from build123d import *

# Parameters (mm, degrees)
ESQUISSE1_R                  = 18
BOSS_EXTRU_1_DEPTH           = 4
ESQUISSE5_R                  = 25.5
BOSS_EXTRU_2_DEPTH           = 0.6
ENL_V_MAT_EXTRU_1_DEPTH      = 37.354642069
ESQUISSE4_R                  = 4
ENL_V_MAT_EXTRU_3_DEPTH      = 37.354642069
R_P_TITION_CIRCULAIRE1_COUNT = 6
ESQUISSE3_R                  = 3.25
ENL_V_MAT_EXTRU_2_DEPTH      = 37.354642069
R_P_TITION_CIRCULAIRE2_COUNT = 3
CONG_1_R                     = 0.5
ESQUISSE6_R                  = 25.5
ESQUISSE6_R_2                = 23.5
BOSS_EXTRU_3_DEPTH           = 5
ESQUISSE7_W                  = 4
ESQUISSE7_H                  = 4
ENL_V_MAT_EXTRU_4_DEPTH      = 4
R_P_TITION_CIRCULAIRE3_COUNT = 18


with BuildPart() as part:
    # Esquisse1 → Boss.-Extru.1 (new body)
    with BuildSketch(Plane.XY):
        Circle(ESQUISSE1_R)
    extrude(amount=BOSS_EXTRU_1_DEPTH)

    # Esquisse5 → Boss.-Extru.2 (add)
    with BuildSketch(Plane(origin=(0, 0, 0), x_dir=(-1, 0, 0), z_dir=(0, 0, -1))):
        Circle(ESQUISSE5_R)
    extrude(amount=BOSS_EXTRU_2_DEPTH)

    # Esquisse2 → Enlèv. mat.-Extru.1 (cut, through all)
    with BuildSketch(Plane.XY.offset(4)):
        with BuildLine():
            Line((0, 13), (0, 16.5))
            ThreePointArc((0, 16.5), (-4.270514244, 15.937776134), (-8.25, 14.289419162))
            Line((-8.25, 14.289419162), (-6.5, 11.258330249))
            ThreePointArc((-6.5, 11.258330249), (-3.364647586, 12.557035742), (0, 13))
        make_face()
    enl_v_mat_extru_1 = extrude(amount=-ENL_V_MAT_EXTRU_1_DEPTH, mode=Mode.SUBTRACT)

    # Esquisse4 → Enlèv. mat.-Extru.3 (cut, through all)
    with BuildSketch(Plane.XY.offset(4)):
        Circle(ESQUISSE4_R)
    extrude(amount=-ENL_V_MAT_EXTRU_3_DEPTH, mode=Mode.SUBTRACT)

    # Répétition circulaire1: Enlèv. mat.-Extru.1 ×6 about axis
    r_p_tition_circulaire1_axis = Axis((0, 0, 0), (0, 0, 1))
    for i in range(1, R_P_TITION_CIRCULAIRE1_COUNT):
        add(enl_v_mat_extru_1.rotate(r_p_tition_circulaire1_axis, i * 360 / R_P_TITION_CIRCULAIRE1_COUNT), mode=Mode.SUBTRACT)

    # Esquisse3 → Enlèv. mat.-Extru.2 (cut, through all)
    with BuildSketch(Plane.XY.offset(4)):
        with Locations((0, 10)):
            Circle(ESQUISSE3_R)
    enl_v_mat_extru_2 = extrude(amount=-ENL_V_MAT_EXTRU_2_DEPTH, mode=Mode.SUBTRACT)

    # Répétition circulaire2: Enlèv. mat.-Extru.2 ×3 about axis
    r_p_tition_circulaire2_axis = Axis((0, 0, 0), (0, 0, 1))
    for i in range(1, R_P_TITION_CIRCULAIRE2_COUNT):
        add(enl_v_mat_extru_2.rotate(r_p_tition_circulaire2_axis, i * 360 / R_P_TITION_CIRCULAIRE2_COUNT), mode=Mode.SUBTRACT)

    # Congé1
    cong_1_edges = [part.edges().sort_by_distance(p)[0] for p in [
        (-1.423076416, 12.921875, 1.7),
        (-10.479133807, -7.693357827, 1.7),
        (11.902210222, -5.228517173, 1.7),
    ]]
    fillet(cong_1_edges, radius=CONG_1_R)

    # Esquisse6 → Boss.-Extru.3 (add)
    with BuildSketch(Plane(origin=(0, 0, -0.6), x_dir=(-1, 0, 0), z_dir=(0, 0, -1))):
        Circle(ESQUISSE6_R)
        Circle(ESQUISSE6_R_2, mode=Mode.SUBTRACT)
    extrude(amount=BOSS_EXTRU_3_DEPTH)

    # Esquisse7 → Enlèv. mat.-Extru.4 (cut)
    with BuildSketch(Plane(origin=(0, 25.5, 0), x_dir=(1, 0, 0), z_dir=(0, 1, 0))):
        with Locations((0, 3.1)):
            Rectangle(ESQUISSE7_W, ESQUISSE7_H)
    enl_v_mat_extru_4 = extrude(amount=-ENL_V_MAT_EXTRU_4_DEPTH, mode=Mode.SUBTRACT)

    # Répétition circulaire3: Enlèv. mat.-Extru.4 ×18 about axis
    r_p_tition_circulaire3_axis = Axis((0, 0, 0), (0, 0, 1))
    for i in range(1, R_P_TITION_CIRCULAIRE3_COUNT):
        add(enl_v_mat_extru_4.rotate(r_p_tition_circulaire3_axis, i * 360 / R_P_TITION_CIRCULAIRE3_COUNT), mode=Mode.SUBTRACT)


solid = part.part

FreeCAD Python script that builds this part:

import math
import FreeCAD as App
import Part
import Sketcher
Q = App.Units.Quantity


def edges_at(feature, points):
    """Names of the edges that pass closest to the given points."""
    edges = feature.Shape.Edges
    near = lambda p: min(range(len(edges)), key=lambda i: edges[i].distToShape(Part.Vertex(*p))[0])
    return sorted({f"Edge{near(p) + 1}" for p in points})

doc = App.newDocument("Part")
params = doc.addObject("Spreadsheet::Sheet", "Params")
for row, (alias, value) in enumerate([
    ("sketch1_diameter", "36 mm"),
    ("pad1_length", "4 mm"),
    ("sketch2_diameter", "51 mm"),
    ("pad2_length", "0.6 mm"),
    ("sketch3_radius", "13 mm"),
    ("sketch3_radius2", "16.5 mm"),
    ("sketch4_diameter", "8 mm"),
    ("sketch5_diameter", "6.5 mm"),
    ("fillet_radius", "0.5 mm"),
    ("sketch6_diameter", "51 mm"),
    ("sketch6_diameter2", "47 mm"),
    ("pad3_length", "5 mm"),
    ("sketch7_width", "4 mm"),
    ("pocket4_length", "4 mm"),
], start=1):
    params.set(f"A{row}", alias)
    params.set(f"B{row}", "=" + value)
    params.setAlias(f"B{row}", alias)

body = doc.addObject("PartDesign::Body", "Body")

# Sketch on XY plane
sketch1 = doc.addObject("Sketcher::SketchObject", "Sketch")
body.addObject(sketch1)
sketch1.AttachmentSupport = (doc.XY_Plane, [""])
sketch1.MapMode = "FlatFace"
sketch1.addGeometry(Part.Circle(App.Vector(0, 0, 0), App.Vector(0, 0, 1), 18), False)
sketch1.addConstraint(Sketcher.Constraint("Coincident", 0, 3, -1, 1))
sketch1.addConstraint(Sketcher.Constraint("Diameter", 0, Q("36 mm")))
sketch1.setExpression("Constraints[1]", "Params.sketch1_diameter")
pad1 = doc.addObject("PartDesign::Pad", "Pad")
body.addObject(pad1)
pad1.Profile = sketch1
pad1.setExpression("Length", "Params.pad1_length")

# Sketch on XY plane
sketch2 = doc.addObject("Sketcher::SketchObject", "Sketch001")
body.addObject(sketch2)
sketch2.AttachmentSupport = (doc.XY_Plane, [""])
sketch2.MapMode = "FlatFace"
sketch2.addGeometry(Part.Circle(App.Vector(0, 0, 0), App.Vector(0, 0, 1), 26), False)
sketch2.addConstraint(Sketcher.Constraint("Coincident", 0, 3, -1, 1))
sketch2.addConstraint(Sketcher.Constraint("Diameter", 0, Q("51 mm")))
sketch2.setExpression("Constraints[1]", "Params.sketch2_diameter")
pad2 = doc.addObject("PartDesign::Pad", "Pad001")
body.addObject(pad2)
pad2.Profile = sketch2
pad2.setExpression("Length", "Params.pad2_length")
pad2.Reversed = True

# Sketch on XY plane
sketch3 = doc.addObject("Sketcher::SketchObject", "Sketch002")
body.addObject(sketch3)
sketch3.AttachmentSupport = (doc.XY_Plane, [""])
sketch3.MapMode = "FlatFace"
sketch3.AttachmentOffset = App.Placement(App.Vector(0, 0, 4), App.Rotation())
sketch3.addGeometry(Part.LineSegment(App.Vector(0, 13, 0), App.Vector(0, 16.5, 0)), False)
sketch3.addGeometry(Part.ArcOfCircle(Part.Circle(App.Vector(0, 0, 0), App.Vector(0, 0, 1), 16.5), math.radians(90), math.radians(120)), False)
sketch3.addGeometry(Part.LineSegment(App.Vector(-8.2, 14.3, 0), App.Vector(-6.5, 11.3, 0)), False)
sketch3.addGeometry(Part.ArcOfCircle(Part.Circle(App.Vector(0, 0, 0), App.Vector(0, 0, 1), 13), math.radians(90), math.radians(120)), False)
sketch3.addConstraint(Sketcher.Constraint("Coincident", 0, 2, 1, 1))
sketch3.addConstraint(Sketcher.Constraint("Coincident", 1, 2, 2, 1))
sketch3.addConstraint(Sketcher.Constraint("Coincident", 2, 2, 3, 2))
sketch3.addConstraint(Sketcher.Constraint("Coincident", 3, 1, 0, 1))
sketch3.addConstraint(Sketcher.Constraint("Vertical", 0))
sketch3.addConstraint(Sketcher.Constraint("Coincident", 1, 3, -1, 1))
sketch3.addConstraint(Sketcher.Constraint("Coincident", 3, 3, -1, 1))
sketch3.addConstraint(Sketcher.Constraint("PointOnObject", 0, 2, -2))
sketch3.addConstraint(Sketcher.Constraint("Radius", 3, Q("13 mm")))
sketch3.addConstraint(Sketcher.Constraint("Radius", 1, Q("16.5 mm")))
sketch3.addConstraint(Sketcher.Constraint("Angle", 2, Q("-60 deg")))
sketch3.addConstraint(Sketcher.Constraint("DistanceX", 2, 2, -1, 1, Q("6.5 mm")))
sketch3.setExpression("Constraints[8]", "Params.sketch3_radius")
sketch3.setExpression("Constraints[9]", "Params.sketch3_radius2")
pocket1 = doc.addObject("PartDesign::Pocket", "Pocket")
body.addObject(pocket1)
pocket1.Profile = sketch3
pocket1.Type = "ThroughAll"

# Sketch on XY plane
sketch4 = doc.addObject("Sketcher::SketchObject", "Sketch003")
body.addObject(sketch4)
sketch4.AttachmentSupport = (doc.XY_Plane, [""])
sketch4.MapMode = "FlatFace"
sketch4.AttachmentOffset = App.Placement(App.Vector(0, 0, 4), App.Rotation())
sketch4.addGeometry(Part.Circle(App.Vector(0, 0, 0), App.Vector(0, 0, 1), 4), False)
sketch4.addConstraint(Sketcher.Constraint("Coincident", 0, 3, -1, 1))
sketch4.addConstraint(Sketcher.Constraint("Diameter", 0, Q("8 mm")))
sketch4.setExpression("Constraints[1]", "Params.sketch4_diameter")
pocket2 = doc.addObject("PartDesign::Pocket", "Pocket001")
body.addObject(pocket2)
pocket2.Profile = sketch4
pocket2.Type = "ThroughAll"
doc.recompute()

polarpattern = doc.addObject("PartDesign::PolarPattern", "PolarPattern")
body.addObject(polarpattern)
polarpattern.Originals = [pocket1]
polarpattern.Axis = (doc.Z_Axis, [""])
polarpattern.Angle = 360
polarpattern.Occurrences = 6
body.Tip = polarpattern

# Sketch on XY plane
sketch5 = doc.addObject("Sketcher::SketchObject", "Sketch004")
body.addObject(sketch5)
sketch5.AttachmentSupport = (doc.XY_Plane, [""])
sketch5.MapMode = "FlatFace"
sketch5.AttachmentOffset = App.Placement(App.Vector(0, 0, 4), App.Rotation())
sketch5.addGeometry(Part.Circle(App.Vector(0, 10, 0), App.Vector(0, 0, 1), 3.2), False)
sketch5.addConstraint(Sketcher.Constraint("PointOnObject", 0, 3, -2))
sketch5.addConstraint(Sketcher.Constraint("Diameter", 0, Q("6.5 mm")))
sketch5.addConstraint(Sketcher.Constraint("DistanceY", -1, 1, 0, 3, Q("10 mm")))
sketch5.setExpression("Constraints[1]", "Params.sketch5_diameter")
pocket3 = doc.addObject("PartDesign::Pocket", "Pocket002")
body.addObject(pocket3)
pocket3.Profile = sketch5
pocket3.Type = "ThroughAll"
doc.recompute()

polarpattern2 = doc.addObject("PartDesign::PolarPattern", "PolarPattern001")
body.addObject(polarpattern2)
polarpattern2.Originals = [pocket3]
polarpattern2.Axis = (doc.Z_Axis, [""])
polarpattern2.Angle = 360
polarpattern2.Occurrences = 3
body.Tip = polarpattern2
doc.recompute()

fillet = doc.addObject("PartDesign::Fillet", "Fillet")
body.addObject(fillet)
fillet.Base = (polarpattern2, edges_at(polarpattern2, [(-1.423, 12.922, 1.7), (-10.479, -7.693, 1.7), (11.902, -5.229, 1.7)]))
fillet.setExpression("Radius", "Params.fillet_radius")

# Sketch on XY plane
sketch6 = doc.addObject("Sketcher::SketchObject", "Sketch005")
body.addObject(sketch6)
sketch6.AttachmentSupport = (doc.XY_Plane, [""])
sketch6.MapMode = "FlatFace"
sketch6.AttachmentOffset = App.Placement(App.Vector(0, 0, -0.6), App.Rotation())
sketch6.addGeometry(Part.Circle(App.Vector(0, 0, 0), App.Vector(0, 0, 1), 26), False)
sketch6.addGeometry(Part.Circle(App.Vector(0, 0, 0), App.Vector(0, 0, 1), 24), False)
sketch6.addConstraint(Sketcher.Constraint("Coincident", 0, 3, -1, 1))
sketch6.addConstraint(Sketcher.Constraint("Coincident", 1, 3, -1, 1))
sketch6.addConstraint(Sketcher.Constraint("Diameter", 0, Q("51 mm")))
sketch6.addConstraint(Sketcher.Constraint("Diameter", 1, Q("47 mm")))
sketch6.setExpression("Constraints[2]", "Params.sketch6_diameter")
sketch6.setExpression("Constraints[3]", "Params.sketch6_diameter2")
pad3 = doc.addObject("PartDesign::Pad", "Pad002")
body.addObject(pad3)
pad3.Profile = sketch6
pad3.setExpression("Length", "Params.pad3_length")
pad3.Reversed = True

# Sketch on XZ plane
sketch7 = doc.addObject("Sketcher::SketchObject", "Sketch006")
body.addObject(sketch7)
sketch7.AttachmentSupport = (doc.XZ_Plane, [""])
sketch7.MapMode = "FlatFace"
sketch7.AttachmentOffset = App.Placement(App.Vector(0, 0, -25.5), App.Rotation())
sketch7.addGeometry(Part.LineSegment(App.Vector(-2, -5.1, 0), App.Vector(-2, -1.1, 0)), False)
sketch7.addGeometry(Part.LineSegment(App.Vector(-2, -1.1, 0), App.Vector(2, -1.1, 0)), False)
sketch7.addGeometry(Part.LineSegment(App.Vector(2, -1.1, 0), App.Vector(2, -5.1, 0)), False)
sketch7.addGeometry(Part.LineSegment(App.Vector(2, -5.1, 0), App.Vector(-2, -5.1, 0)), False)
sketch7.addConstraint(Sketcher.Constraint("Coincident", 0, 2, 1, 1))
sketch7.addConstraint(Sketcher.Constraint("Coincident", 1, 2, 2, 1))
sketch7.addConstraint(Sketcher.Constraint("Coincident", 2, 2, 3, 1))
sketch7.addConstraint(Sketcher.Constraint("Coincident", 3, 2, 0, 1))
sketch7.addConstraint(Sketcher.Constraint("Vertical", 0))
sketch7.addConstraint(Sketcher.Constraint("Horizontal", 1))
sketch7.addConstraint(Sketcher.Constraint("Vertical", 2))
sketch7.addConstraint(Sketcher.Constraint("Horizontal", 3))
sketch7.addConstraint(Sketcher.Constraint("Equal", 3, 0))
sketch7.addConstraint(Sketcher.Constraint("DistanceX", 1, 1, 1, 2, Q("4 mm")))
sketch7.addConstraint(Sketcher.Constraint("DistanceX", 0, 2, -1, 1, Q("2 mm")))
sketch7.addConstraint(Sketcher.Constraint("DistanceY", 0, 2, -1, 1, Q("1.1 mm")))
sketch7.setExpression("Constraints[9]", "Params.sketch7_width")
pocket4 = doc.addObject("PartDesign::Pocket", "Pocket003")
body.addObject(pocket4)
pocket4.Profile = sketch7
pocket4.setExpression("Length", "Params.pocket4_length")
pocket4.Reversed = True
doc.recompute()

polarpattern3 = doc.addObject("PartDesign::PolarPattern", "PolarPattern002")
body.addObject(polarpattern3)
polarpattern3.Originals = [pocket4]
polarpattern3.Axis = (doc.Z_Axis, [""])
polarpattern3.Angle = 360
polarpattern3.Occurrences = 18
body.Tip = polarpattern3

doc.recompute()
